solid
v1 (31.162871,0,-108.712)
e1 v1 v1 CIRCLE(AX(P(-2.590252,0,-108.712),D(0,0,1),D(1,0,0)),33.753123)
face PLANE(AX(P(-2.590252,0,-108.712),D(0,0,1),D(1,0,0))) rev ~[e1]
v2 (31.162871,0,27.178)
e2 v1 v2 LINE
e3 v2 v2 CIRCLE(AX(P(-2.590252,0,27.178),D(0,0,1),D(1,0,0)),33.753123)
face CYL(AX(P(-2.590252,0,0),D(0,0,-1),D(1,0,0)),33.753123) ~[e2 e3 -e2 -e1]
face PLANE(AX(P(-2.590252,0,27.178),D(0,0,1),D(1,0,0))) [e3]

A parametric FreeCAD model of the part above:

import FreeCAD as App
import Part
import Sketcher
Q = App.Units.Quantity

doc = App.newDocument("Part")
body = doc.addObject("PartDesign::Body", "Body")

sketch1 = doc.addObject("Sketcher::SketchObject", "Sketch")
body.addObject(sketch1)
sketch1.AttachmentSupport = (doc.XY_Plane, [""])
sketch1.MapMode = "FlatFace"
sketch1.addGeometry(Part.Circle(App.Vector(-2.590252, 0, 0), App.Vector(0, 0, 1), 33.753123), False)
sketch1.addConstraint(Sketcher.Constraint("PointOnObject", 0, 3, -1))
sketch1.addConstraint(Sketcher.Constraint("Diameter", 0, Q("67.506246 mm")))
sketch1.addConstraint(Sketcher.Constraint("DistanceX", 0, 3, -1, 1, Q("2.590252 mm")))
pad1 = doc.addObject("PartDesign::Pad", "Pad")
body.addObject(pad1)
pad1.Profile = sketch1
pad1.Length = Q("1.07 in")

sketch2 = doc.addObject("Sketcher::SketchObject", "Sketch001")
body.addObject(sketch2)
sketch2.AttachmentSupport = (doc.XY_Plane, [""])
sketch2.MapMode = "FlatFace"
sketch2.AttachmentOffset = App.Placement(App.Vector(0, 0, 1.07 * 25.4), App.Rotation())
sketch2.addGeometry(Part.Circle(App.Vector(-2.590252, 0, 0), App.Vector(0, 0, 1), 33.753123), False)
sketch2.addConstraint(Sketcher.Constraint("PointOnObject", 0, 3, -1))
sketch2.addConstraint(Sketcher.Constraint("Diameter", 0, Q("67.506246 mm")))
sketch2.addConstraint(Sketcher.Constraint("DistanceX", 0, 3, -1, 1, Q("2.590252 mm")))
pad2 = doc.addObject("PartDesign::Pad", "Pad001")
body.addObject(pad2)
pad2.Profile = sketch2
pad2.Length = Q("5.35 in")
pad2.Reversed = True

doc.recompute()
